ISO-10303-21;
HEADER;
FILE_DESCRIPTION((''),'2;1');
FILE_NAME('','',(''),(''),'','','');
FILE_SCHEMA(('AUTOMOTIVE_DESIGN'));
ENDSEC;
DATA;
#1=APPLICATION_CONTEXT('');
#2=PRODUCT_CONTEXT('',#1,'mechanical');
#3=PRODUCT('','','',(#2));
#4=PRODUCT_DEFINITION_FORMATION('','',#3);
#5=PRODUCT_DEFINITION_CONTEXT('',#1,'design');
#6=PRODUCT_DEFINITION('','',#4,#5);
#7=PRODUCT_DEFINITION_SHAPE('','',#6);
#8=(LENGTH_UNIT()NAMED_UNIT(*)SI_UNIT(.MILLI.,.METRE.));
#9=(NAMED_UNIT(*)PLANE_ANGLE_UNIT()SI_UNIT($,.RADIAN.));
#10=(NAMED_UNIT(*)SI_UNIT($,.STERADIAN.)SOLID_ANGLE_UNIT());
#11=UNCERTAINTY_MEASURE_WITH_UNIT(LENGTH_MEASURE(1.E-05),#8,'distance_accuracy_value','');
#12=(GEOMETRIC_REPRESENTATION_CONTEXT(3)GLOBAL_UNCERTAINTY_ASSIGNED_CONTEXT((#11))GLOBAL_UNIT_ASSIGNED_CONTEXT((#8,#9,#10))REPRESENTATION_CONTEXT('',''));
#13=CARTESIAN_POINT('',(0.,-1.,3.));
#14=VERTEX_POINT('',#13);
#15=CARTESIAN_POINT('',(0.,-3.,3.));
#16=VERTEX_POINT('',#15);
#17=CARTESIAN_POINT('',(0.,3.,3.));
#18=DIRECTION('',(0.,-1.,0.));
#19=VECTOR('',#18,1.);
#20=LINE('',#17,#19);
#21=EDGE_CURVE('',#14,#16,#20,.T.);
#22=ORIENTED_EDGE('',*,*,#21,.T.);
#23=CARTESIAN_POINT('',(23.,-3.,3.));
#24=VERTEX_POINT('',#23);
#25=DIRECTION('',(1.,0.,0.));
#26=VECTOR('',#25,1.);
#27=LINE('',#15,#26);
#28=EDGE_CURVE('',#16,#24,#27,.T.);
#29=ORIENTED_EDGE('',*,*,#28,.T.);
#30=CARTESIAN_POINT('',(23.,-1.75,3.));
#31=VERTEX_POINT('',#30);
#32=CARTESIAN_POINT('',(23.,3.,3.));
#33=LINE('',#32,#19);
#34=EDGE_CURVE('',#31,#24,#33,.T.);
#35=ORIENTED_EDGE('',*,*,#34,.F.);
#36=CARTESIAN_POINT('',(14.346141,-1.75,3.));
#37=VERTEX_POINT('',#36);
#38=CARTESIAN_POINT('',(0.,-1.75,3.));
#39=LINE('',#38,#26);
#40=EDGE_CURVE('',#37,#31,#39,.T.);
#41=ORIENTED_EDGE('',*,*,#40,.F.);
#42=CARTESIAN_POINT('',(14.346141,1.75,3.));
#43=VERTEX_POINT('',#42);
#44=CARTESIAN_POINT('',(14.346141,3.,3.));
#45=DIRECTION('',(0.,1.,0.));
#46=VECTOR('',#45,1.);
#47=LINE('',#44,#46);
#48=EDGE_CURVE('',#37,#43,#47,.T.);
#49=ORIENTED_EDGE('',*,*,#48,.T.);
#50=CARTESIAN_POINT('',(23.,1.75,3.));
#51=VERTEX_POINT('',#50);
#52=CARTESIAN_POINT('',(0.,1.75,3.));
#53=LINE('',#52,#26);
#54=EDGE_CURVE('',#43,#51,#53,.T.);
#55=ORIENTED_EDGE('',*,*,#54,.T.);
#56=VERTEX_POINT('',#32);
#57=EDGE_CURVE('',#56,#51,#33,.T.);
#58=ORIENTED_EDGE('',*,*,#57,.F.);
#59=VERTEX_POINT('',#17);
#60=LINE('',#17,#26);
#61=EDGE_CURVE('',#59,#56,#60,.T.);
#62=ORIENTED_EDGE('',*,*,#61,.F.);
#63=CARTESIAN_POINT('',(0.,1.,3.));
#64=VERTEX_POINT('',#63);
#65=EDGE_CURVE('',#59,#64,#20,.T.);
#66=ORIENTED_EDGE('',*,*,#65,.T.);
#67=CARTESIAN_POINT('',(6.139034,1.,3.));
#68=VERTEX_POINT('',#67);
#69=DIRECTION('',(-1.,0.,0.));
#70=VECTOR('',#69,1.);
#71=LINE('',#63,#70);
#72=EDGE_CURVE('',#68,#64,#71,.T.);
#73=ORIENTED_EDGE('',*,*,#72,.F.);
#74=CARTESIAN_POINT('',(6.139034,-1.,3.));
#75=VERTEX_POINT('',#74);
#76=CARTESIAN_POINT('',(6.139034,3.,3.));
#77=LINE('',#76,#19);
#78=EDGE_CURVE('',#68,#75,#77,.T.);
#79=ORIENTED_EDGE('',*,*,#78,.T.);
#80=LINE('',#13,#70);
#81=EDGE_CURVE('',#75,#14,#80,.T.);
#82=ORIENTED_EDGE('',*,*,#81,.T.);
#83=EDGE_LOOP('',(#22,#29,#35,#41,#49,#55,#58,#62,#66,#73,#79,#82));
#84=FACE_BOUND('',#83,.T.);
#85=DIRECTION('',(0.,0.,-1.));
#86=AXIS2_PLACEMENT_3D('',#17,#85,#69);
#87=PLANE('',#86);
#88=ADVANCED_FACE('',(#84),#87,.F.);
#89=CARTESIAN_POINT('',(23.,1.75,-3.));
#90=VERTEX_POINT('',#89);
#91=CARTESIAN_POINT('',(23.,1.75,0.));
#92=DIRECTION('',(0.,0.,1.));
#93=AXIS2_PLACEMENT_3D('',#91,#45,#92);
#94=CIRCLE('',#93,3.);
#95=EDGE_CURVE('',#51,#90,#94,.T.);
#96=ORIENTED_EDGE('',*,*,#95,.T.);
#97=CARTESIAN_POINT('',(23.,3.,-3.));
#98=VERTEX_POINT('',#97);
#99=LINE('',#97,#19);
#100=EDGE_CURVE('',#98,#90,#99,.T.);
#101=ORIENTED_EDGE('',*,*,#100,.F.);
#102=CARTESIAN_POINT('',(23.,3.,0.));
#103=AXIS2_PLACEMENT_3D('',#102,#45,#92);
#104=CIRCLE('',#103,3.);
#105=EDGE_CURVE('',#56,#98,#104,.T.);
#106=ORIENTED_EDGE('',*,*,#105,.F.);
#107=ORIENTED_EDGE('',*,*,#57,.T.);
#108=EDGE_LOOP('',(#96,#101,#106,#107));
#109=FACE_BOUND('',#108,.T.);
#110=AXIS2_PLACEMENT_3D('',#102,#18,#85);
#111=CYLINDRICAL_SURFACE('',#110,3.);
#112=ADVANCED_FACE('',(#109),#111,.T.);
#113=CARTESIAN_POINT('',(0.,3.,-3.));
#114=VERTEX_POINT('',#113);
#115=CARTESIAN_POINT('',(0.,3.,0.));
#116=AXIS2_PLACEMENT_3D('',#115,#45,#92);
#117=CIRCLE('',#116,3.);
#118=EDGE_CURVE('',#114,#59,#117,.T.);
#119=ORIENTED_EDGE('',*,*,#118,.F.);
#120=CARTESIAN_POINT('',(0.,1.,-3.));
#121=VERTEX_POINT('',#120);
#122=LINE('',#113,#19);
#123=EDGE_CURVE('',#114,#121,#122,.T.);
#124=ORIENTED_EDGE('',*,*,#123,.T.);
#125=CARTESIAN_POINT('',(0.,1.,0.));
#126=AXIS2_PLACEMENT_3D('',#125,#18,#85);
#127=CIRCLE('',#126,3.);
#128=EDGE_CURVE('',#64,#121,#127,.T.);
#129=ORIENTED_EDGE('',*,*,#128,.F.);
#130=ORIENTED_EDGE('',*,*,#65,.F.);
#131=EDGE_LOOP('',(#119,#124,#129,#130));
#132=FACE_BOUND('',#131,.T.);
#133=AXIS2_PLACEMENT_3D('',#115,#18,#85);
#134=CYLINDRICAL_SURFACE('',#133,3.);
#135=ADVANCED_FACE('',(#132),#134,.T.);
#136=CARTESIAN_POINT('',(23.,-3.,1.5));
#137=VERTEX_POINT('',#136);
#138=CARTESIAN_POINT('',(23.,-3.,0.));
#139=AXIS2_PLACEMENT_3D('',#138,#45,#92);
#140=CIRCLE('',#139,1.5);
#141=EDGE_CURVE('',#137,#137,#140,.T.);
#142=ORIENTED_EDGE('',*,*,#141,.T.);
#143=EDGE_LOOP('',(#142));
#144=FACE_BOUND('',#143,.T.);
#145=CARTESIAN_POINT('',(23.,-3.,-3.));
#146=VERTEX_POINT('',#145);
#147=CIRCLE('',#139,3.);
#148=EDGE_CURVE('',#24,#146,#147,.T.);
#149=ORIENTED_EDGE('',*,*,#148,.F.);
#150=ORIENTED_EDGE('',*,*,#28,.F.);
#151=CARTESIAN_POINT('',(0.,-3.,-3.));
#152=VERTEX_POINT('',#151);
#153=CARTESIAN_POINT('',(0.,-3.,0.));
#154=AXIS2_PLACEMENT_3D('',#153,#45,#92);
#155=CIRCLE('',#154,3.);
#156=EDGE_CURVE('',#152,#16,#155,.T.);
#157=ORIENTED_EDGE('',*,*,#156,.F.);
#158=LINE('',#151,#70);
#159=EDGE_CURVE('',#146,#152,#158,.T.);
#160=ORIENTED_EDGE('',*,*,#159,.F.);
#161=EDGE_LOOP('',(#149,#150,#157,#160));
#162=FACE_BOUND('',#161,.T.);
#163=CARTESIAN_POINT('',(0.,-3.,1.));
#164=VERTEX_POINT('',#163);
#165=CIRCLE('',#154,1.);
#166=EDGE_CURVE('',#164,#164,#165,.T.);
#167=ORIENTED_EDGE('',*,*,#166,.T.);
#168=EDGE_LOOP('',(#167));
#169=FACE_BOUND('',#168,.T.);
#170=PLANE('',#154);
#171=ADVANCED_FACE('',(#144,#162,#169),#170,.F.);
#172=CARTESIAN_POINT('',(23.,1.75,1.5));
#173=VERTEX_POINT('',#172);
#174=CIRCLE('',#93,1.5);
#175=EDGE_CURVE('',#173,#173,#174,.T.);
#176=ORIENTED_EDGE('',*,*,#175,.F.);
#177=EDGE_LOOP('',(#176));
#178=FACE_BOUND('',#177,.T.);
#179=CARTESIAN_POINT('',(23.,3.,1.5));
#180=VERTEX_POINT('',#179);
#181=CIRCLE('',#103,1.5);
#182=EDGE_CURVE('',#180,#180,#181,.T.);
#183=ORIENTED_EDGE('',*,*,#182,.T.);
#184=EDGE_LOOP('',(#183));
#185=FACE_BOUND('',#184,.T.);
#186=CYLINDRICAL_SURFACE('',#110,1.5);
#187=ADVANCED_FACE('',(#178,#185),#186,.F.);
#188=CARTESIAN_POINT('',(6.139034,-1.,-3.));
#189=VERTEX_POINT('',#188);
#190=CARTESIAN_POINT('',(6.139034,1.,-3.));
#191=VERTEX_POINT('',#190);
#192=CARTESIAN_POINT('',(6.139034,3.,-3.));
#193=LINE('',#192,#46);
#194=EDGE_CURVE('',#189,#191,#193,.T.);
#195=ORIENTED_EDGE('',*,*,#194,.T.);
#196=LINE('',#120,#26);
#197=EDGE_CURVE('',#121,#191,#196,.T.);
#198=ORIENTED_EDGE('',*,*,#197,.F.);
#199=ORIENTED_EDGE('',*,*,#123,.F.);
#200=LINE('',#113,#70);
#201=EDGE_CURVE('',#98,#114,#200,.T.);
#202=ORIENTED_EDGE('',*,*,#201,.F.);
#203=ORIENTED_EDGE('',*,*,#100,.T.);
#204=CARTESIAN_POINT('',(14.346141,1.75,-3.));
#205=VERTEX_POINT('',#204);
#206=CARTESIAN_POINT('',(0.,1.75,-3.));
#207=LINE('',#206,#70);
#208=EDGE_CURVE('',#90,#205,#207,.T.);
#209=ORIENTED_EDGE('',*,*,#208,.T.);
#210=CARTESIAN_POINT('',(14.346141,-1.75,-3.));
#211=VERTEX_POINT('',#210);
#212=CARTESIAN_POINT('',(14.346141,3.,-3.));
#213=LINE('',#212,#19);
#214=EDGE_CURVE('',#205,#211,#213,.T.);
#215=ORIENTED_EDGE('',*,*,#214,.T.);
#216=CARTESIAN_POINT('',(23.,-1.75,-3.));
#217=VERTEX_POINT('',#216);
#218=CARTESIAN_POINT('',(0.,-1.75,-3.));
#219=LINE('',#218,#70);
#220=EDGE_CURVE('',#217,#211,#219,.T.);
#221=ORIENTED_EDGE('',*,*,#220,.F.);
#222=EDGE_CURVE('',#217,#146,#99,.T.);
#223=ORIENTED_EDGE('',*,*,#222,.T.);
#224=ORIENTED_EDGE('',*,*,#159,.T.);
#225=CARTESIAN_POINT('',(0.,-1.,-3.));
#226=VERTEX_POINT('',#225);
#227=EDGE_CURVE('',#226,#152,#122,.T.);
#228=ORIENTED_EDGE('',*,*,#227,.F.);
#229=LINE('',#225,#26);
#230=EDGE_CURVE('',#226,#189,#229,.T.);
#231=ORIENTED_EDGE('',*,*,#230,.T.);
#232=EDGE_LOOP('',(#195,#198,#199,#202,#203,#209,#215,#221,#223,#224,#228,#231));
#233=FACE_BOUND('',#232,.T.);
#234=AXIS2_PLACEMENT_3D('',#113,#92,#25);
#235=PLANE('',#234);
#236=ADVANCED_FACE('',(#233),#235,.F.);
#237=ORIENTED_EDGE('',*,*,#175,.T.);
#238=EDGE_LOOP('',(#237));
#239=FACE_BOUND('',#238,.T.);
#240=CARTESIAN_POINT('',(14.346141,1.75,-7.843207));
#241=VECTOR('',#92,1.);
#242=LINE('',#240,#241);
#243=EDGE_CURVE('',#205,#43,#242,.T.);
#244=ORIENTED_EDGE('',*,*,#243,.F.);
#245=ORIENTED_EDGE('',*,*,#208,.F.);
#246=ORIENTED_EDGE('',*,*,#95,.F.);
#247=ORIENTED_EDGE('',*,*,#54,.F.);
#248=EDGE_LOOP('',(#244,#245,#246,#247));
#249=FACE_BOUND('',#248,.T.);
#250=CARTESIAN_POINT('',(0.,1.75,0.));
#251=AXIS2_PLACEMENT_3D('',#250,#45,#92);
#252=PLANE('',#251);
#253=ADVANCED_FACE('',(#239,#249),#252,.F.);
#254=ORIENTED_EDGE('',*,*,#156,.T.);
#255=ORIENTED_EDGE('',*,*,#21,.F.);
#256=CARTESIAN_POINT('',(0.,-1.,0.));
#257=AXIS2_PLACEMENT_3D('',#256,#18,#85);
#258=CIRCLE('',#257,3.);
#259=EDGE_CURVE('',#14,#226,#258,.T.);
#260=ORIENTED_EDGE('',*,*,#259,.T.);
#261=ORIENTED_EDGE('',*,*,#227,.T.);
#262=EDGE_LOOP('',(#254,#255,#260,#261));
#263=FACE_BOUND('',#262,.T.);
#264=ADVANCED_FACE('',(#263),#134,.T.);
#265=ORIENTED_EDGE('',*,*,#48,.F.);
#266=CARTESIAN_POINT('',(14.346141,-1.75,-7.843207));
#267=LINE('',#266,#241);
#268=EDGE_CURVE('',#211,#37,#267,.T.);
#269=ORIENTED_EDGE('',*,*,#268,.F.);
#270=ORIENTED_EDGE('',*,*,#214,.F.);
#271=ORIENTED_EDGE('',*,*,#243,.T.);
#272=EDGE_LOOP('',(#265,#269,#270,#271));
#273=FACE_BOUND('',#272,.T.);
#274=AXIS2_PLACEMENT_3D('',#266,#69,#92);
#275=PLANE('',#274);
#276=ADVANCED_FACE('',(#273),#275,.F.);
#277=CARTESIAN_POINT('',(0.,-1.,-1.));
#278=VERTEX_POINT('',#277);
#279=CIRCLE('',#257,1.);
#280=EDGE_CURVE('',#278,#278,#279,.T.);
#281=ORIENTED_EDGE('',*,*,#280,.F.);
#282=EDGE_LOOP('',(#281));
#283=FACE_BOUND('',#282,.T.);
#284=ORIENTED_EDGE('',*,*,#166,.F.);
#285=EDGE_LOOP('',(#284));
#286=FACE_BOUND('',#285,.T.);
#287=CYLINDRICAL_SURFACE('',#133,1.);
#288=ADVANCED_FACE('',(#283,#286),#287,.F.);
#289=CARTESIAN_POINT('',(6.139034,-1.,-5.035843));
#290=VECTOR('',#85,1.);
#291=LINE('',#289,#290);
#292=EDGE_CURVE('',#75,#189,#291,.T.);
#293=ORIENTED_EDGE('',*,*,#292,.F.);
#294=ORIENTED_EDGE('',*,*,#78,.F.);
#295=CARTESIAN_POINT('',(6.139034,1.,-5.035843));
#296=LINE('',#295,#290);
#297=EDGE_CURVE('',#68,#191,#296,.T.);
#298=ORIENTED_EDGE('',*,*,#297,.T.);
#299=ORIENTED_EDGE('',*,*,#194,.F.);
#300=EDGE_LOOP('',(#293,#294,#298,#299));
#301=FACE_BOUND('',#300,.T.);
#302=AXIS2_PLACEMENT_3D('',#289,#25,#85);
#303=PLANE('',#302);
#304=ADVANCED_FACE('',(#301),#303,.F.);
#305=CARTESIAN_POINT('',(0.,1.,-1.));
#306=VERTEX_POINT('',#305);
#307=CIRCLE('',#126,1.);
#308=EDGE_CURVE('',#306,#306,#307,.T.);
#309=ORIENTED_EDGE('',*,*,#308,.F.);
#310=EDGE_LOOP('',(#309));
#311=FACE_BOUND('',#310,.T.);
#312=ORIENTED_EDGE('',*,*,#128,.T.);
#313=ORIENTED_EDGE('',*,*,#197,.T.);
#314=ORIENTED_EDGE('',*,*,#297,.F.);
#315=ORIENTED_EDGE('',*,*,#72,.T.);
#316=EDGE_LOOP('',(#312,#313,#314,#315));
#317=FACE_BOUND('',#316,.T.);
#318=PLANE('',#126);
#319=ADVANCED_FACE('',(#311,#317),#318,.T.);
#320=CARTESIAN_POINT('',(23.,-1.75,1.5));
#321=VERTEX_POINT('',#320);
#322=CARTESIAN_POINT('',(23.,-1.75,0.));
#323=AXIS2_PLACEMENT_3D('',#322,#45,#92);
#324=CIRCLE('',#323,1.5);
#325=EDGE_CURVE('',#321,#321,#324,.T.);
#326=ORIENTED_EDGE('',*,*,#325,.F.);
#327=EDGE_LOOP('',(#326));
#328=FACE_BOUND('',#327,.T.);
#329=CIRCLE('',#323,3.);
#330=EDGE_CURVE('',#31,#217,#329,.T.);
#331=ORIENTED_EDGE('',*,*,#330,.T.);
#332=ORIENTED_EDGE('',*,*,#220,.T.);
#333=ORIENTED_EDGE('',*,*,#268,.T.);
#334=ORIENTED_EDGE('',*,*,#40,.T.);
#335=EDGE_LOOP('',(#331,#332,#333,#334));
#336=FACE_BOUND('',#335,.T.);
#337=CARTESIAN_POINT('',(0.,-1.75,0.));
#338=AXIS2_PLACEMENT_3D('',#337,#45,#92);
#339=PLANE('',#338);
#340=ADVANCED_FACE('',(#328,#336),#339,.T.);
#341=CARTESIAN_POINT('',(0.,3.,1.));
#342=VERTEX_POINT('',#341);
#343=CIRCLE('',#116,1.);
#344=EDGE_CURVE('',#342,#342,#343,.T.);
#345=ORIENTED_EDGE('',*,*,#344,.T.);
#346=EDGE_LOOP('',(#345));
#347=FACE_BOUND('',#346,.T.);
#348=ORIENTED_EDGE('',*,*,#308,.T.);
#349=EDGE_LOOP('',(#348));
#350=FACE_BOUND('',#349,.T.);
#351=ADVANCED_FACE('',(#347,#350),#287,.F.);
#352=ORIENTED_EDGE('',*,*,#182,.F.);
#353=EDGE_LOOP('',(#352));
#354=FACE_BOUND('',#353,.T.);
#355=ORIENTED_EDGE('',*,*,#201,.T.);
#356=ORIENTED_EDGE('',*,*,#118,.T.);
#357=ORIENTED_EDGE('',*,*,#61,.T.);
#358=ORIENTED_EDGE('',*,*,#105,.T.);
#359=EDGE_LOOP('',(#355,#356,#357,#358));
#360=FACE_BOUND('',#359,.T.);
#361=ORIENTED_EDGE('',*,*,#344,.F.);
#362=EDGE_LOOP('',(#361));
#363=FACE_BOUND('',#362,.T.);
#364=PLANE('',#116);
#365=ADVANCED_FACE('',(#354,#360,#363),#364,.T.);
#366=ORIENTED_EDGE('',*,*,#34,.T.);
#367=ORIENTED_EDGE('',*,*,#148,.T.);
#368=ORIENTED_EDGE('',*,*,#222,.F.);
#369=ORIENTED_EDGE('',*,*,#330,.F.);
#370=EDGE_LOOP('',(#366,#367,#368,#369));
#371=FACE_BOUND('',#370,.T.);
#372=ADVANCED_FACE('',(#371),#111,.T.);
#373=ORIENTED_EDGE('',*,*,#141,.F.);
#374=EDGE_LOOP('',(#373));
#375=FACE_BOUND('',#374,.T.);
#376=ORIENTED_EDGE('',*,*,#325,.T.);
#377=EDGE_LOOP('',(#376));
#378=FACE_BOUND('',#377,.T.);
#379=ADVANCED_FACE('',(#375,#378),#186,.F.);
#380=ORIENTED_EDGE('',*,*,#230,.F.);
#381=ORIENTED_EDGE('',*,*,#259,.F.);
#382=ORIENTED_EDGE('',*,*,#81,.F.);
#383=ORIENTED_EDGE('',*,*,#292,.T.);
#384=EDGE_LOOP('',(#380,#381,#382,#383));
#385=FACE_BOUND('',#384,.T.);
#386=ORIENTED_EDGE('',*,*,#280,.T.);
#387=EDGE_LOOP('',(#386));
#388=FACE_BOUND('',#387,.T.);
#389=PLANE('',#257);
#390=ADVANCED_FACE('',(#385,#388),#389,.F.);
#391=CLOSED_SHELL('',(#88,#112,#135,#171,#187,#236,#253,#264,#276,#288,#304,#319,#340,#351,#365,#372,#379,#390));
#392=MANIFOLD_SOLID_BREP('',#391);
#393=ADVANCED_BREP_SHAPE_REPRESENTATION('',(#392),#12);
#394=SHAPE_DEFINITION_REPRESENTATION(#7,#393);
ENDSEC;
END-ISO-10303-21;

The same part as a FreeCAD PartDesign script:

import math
import FreeCAD as App
import Part
import Sketcher


def add_polygon(sketch, points):
    """Adds a closed chain of lines whose ends are joined by coincident constraints."""
    first, n = sketch.GeometryCount, len(points)
    for a, b in zip(points, points[1:] + points[:1]):
        sketch.addGeometry(Part.LineSegment(App.Vector(*a, 0), App.Vector(*b, 0)), False)
    for i in range(n):
        sketch.addConstraint(Sketcher.Constraint("Coincident", first + i, 2, first + (i + 1) % n, 1))

doc = App.newDocument("Part")
body = doc.addObject("PartDesign::Body", "Body")

sketch1 = doc.addObject("Sketcher::SketchObject", "Sketch")
body.addObject(sketch1)
sketch1.AttachmentSupport = (doc.XZ_Plane, [""])
sketch1.MapMode = "FlatFace"
sketch1.addGeometry([
    Part.LineSegment(App.Vector(23, -3, 0), App.Vector(0, -3, 0)),
    Part.ArcOfCircle(Part.Circle(App.Vector(0, 0, 0), App.Vector(0, 0, 1), 3), math.radians(90), math.radians(270)),
    Part.LineSegment(App.Vector(0, 3, 0), App.Vector(23, 3, 0)),
    Part.ArcOfCircle(Part.Circle(App.Vector(23, 0, 0), App.Vector(0, 0, 1), 3), math.radians(-90), math.radians(90)),
    Part.Circle(App.Vector(23, 0, 0), App.Vector(0, 0, 1), 1.5),
    Part.Circle(App.Vector(0, 0, 0), App.Vector(0, 0, 1), 1),
], False)
sketch1.addConstraint([
    Sketcher.Constraint("Tangent", 0, 2, 1, 2),
    Sketcher.Constraint("Tangent", 1, 1, 2, 1),
    Sketcher.Constraint("Tangent", 2, 2, 3, 2),
    Sketcher.Constraint("Tangent", 3, 1, 0, 1),
    Sketcher.Constraint("Horizontal", 0),
    Sketcher.Constraint("Horizontal", 2),
    Sketcher.Constraint("Coincident", 1, 3, -1, 1),
    Sketcher.Constraint("Coincident", 5, 3, -1, 1),
    Sketcher.Constraint("Coincident", 4, 3, 3, 3),
    Sketcher.Constraint("Diameter", 4, 3.0),
    Sketcher.Constraint("Diameter", 5, 2.0),
    Sketcher.Constraint("Radius", 1, 3.0),
    Sketcher.Constraint("DistanceX", 0, 2, 0, 1, 23.0),
])
pad1 = doc.addObject("PartDesign::Pad", "Pad")
body.addObject(pad1)
pad1.Profile = sketch1
pad1.Length = 6
pad1.Midplane = True

sketch2 = doc.addObject("Sketcher::SketchObject", "Sketch001")
body.addObject(sketch2)
sketch2.AttachmentSupport = (doc.XZ_Plane, [""])
sketch2.MapMode = "FlatFace"
add_polygon(sketch2, [(14.346141, -7.843207), (14.346141, 3.76199), (45.857511, 3.76199), (45.857511, -7.843207)])
sketch2.addConstraint([
    Sketcher.Constraint("Vertical", 0),
    Sketcher.Constraint("Horizontal", 1),
    Sketcher.Constraint("Vertical", 2),
    Sketcher.Constraint("Horizontal", 3),
    Sketcher.Constraint("DistanceX", 1, 1, 1, 2, 31.51137),
    Sketcher.Constraint("DistanceY", 0, 1, 0, 2, 11.605198),
    Sketcher.Constraint("DistanceX", -1, 1, 0, 2, 14.346141),
    Sketcher.Constraint("DistanceY", -1, 1, 0, 2, 3.76199),
])
pocket1 = doc.addObject("PartDesign::Pocket", "Pocket")
body.addObject(pocket1)
pocket1.Profile = sketch2
pocket1.Length = 3.5
pocket1.Midplane = True

sketch3 = doc.addObject("Sketcher::SketchObject", "Sketch002")
body.addObject(sketch3)
sketch3.AttachmentSupport = (doc.XZ_Plane, [""])
sketch3.MapMode = "FlatFace"
add_polygon(sketch3, [(-6.521183, -5.035843), (-6.521183, 4.614084), (6.139034, 4.614084), (6.139034, -5.035843)])
sketch3.addConstraint([
    Sketcher.Constraint("Vertical", 0),
    Sketcher.Constraint("Horizontal", 1),
    Sketcher.Constraint("Vertical", 2),
    Sketcher.Constraint("Horizontal", 3),
    Sketcher.Constraint("DistanceX", 1, 1, 1, 2, 12.660217),
    Sketcher.Constraint("DistanceY", 0, 1, 0, 2, 9.649928),
    Sketcher.Constraint("DistanceX", 0, 2, -1, 1, 6.521183),
    Sketcher.Constraint("DistanceY", -1, 1, 0, 2, 4.614084),
])
pocket2 = doc.addObject("PartDesign::Pocket", "Pocket001")
body.addObject(pocket2)
pocket2.Profile = sketch3
pocket2.Length = 2
pocket2.Midplane = True

doc.recompute()
